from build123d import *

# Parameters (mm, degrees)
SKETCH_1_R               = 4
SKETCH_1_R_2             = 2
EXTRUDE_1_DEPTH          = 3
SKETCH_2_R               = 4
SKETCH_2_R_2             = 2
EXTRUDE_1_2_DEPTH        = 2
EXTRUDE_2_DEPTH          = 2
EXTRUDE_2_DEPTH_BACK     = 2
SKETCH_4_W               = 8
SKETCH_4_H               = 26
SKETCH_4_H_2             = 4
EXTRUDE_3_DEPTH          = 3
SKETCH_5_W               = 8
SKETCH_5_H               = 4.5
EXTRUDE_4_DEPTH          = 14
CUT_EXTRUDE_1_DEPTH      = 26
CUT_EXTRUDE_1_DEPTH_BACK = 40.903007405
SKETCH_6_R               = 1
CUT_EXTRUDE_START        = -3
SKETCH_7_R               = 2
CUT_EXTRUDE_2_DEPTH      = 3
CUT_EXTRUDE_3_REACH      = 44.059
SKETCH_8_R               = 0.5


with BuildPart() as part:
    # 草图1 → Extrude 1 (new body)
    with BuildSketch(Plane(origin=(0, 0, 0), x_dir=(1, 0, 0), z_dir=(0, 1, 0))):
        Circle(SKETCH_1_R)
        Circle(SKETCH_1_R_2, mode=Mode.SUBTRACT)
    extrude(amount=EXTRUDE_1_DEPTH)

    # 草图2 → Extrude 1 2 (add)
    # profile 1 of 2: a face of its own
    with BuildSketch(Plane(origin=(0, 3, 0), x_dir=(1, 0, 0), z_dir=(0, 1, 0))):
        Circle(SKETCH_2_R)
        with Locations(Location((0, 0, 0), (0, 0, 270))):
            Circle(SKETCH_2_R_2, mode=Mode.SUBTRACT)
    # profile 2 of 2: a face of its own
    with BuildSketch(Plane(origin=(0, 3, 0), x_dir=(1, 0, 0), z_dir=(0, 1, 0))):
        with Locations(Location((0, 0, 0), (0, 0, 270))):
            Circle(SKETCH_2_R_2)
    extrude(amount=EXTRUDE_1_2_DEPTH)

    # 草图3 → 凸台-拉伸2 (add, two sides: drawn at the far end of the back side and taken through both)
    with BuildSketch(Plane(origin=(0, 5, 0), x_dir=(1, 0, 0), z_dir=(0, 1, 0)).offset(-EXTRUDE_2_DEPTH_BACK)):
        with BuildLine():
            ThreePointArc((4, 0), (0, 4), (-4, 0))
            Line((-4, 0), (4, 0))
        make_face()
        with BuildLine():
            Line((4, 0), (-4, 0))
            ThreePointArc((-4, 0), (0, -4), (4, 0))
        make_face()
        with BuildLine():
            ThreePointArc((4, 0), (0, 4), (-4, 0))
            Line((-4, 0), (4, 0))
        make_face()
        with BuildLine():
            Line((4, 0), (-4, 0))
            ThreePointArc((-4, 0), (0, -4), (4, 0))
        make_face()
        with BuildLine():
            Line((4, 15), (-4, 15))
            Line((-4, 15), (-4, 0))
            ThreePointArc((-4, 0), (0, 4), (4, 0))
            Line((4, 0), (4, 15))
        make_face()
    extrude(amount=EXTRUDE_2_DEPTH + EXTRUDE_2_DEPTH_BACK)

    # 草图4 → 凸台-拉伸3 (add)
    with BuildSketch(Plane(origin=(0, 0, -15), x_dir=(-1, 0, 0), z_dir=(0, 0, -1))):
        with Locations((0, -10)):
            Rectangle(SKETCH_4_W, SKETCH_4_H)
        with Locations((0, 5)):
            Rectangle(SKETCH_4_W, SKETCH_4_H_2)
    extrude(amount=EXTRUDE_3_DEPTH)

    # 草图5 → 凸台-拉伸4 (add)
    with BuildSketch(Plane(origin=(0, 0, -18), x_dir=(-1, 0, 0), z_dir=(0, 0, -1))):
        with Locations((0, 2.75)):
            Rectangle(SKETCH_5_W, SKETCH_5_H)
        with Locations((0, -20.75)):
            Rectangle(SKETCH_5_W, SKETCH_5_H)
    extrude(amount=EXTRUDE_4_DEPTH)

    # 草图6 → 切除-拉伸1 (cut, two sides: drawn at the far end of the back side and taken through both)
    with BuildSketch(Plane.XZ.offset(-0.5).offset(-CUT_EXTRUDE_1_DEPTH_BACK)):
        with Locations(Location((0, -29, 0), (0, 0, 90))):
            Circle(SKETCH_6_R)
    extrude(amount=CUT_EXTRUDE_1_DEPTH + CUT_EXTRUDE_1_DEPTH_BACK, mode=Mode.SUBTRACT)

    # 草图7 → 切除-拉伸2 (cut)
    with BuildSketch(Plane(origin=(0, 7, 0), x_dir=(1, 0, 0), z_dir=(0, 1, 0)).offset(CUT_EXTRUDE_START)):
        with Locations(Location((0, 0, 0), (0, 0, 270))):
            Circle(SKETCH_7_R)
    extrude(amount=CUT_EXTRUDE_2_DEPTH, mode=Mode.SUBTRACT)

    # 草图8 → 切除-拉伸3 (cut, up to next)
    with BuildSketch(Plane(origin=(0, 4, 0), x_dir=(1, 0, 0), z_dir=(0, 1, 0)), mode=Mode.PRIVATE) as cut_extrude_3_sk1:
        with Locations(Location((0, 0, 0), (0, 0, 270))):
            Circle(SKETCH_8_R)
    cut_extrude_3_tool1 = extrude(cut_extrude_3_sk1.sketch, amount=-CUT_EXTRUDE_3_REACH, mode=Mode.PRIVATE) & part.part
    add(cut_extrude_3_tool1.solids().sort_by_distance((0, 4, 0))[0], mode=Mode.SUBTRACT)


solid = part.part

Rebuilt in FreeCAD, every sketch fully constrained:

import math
import FreeCAD as App
import Part
import Sketcher


def add_polygon(sketch, points):
    """Adds a closed chain of lines whose ends are joined by coincident constraints."""
    first, n = sketch.GeometryCount, len(points)
    for a, b in zip(points, points[1:] + points[:1]):
        sketch.addGeometry(Part.LineSegment(App.Vector(*a, 0), App.Vector(*b, 0)), False)
    for i in range(n):
        sketch.addConstraint(Sketcher.Constraint("Coincident", first + i, 2, first + (i + 1) % n, 1))

doc = App.newDocument("Part")
params = doc.addObject("Spreadsheet::Sheet", "Params")
for row, (alias, value) in enumerate([
    ("sketch1_diameter", "8 mm"),
    ("sketch1_diameter2", "4 mm"),
    ("pad1_length", "3 mm"),
    ("sketch2_diameter", "8 mm"),
    ("pad2_length", "2 mm"),
    ("sketch3_radius", "4 mm"),
    ("sketch3_height", "15 mm"),
    ("pad3_length", "2 mm"),
    ("pad3_length2", "2 mm"),
    ("sketch4_width", "8 mm"),
    ("sketch4_height", "30 mm"),
    ("pad4_length", "3 mm"),
    ("sketch5_width", "8 mm"),
    ("sketch5_height", "4.5 mm"),
    ("pad5_length", "14 mm"),
    ("sketch6_diameter", "2 mm"),
    ("sketch7_diameter", "4 mm"),
    ("pocket2_length", "3 mm"),
    ("sketch8_diameter", "1 mm"),
], start=1):
    params.set(f"A{row}", alias)
    params.set(f"B{row}", "=" + value)
    params.setAlias(f"B{row}", alias)

body = doc.addObject("PartDesign::Body", "Body")

# Sketch on XZ plane
sketch1 = body.newObject("Sketcher::SketchObject", "Sketch")
sketch1.AttachmentSupport = (doc.getObject("XZ_Plane"), [""])
sketch1.MapMode = "FlatFace"
sketch1.addGeometry([
    Part.Circle(App.Vector(0, 0, 0), App.Vector(0, 0, 1), 4),
    Part.Circle(App.Vector(0, 0, 0), App.Vector(0, 0, 1), 2),
], False)
sketch1.addConstraint([
    Sketcher.Constraint("Coincident", 0, 3, -1, 1),
    Sketcher.Constraint("Coincident", 1, 3, -1, 1),
    Sketcher.Constraint("Diameter", 0, 8.0),
    Sketcher.Constraint("Diameter", 1, 4.0),
])
sketch1.setExpression("Constraints[2]", "Params.sketch1_diameter")
sketch1.setExpression("Constraints[3]", "Params.sketch1_diameter2")
pad1 = body.newObject("PartDesign::Pad", "Pad")
pad1.Profile = sketch1
pad1.setExpression("Length", "Params.pad1_length")
pad1.Reversed = True

# Sketch on XZ plane
sketch2 = body.newObject("Sketcher::SketchObject", "Sketch001")
sketch2.AttachmentSupport = (doc.getObject("XZ_Plane"), [""])
sketch2.MapMode = "FlatFace"
sketch2.AttachmentOffset = App.Placement(App.Vector(0, 0, -3), App.Rotation())
sketch2.addGeometry(Part.Circle(App.Vector(0, 0, 0), App.Vector(0, 0, 1), 4), False)
sketch2.addConstraint([
    Sketcher.Constraint("Coincident", 0, 3, -1, 1),
    Sketcher.Constraint("Diameter", 0, 8.0),
])
sketch2.setExpression("Constraints[1]", "Params.sketch2_diameter")
pad2 = body.newObject("PartDesign::Pad", "Pad001")
pad2.Profile = sketch2
pad2.setExpression("Length", "Params.pad2_length")
pad2.Reversed = True

# Sketch on XZ plane
sketch3 = body.newObject("Sketcher::SketchObject", "Sketch002")
sketch3.AttachmentSupport = (doc.getObject("XZ_Plane"), [""])
sketch3.MapMode = "FlatFace"
sketch3.AttachmentOffset = App.Placement(App.Vector(0, 0, -5), App.Rotation())
sketch3.addGeometry([
    Part.ArcOfCircle(Part.Circle(App.Vector(0, 0, 0), App.Vector(0, 0, 1), 4), math.radians(0), math.radians(180)),
    Part.LineSegment(App.Vector(4, 0, 0), App.Vector(4, -15, 0)),
    Part.LineSegment(App.Vector(4, -15, 0), App.Vector(-4, -15, 0)),
    Part.LineSegment(App.Vector(-4, -15, 0), App.Vector(-4, 0, 0)),
], False)
sketch3.addConstraint([
    Sketcher.Constraint("Tangent", 0, 1, 1, 1),
    Sketcher.Constraint("Coincident", 1, 2, 2, 1),
    Sketcher.Constraint("Coincident", 2, 2, 3, 1),
    Sketcher.Constraint("Tangent", 3, 2, 0, 2),
    Sketcher.Constraint("Vertical", 1),
    Sketcher.Constraint("Horizontal", 2),
    Sketcher.Constraint("Vertical", 3),
    Sketcher.Constraint("Coincident", 0, 3, -1, 1),
    Sketcher.Constraint("Radius", 0, 4.0),
    Sketcher.Constraint("DistanceY", 1, 2, 1, 1, 15.0),
])
sketch3.setExpression("Constraints[8]", "Params.sketch3_radius")
sketch3.setExpression("Constraints[9]", "Params.sketch3_height")
pad3 = body.newObject("PartDesign::Pad", "Pad002")
pad3.Profile = sketch3
pad3.Type = "TwoLengths"
pad3.setExpression("Length", "Params.pad3_length")
pad3.setExpression("Length2", "Params.pad3_length2")
pad3.Reversed = True

# Sketch on XY plane
sketch4 = body.newObject("Sketcher::SketchObject", "Sketch003")
sketch4.AttachmentSupport = (doc.getObject("XY_Plane"), [""])
sketch4.MapMode = "FlatFace"
sketch4.AttachmentOffset = App.Placement(App.Vector(0, 0, -15), App.Rotation())
add_polygon(sketch4, [(4, -23), (-4, -23), (-4, 7), (4, 7)])  # lines 0-3
sketch4.addConstraint([
    Sketcher.Constraint("Horizontal", 0),
    Sketcher.Constraint("Vertical", 1),
    Sketcher.Constraint("Horizontal", 2),
    Sketcher.Constraint("Vertical", 3),
    Sketcher.Constraint("DistanceX", 0, 2, 0, 1, 8.0),
    Sketcher.Constraint("DistanceY", 1, 1, 1, 2, 30.0),
    Sketcher.Constraint("DistanceX", 0, 2, -1, 1, 4.0),
    Sketcher.Constraint("DistanceY", 0, 2, -1, 1, 23.0),
])
sketch4.setExpression("Constraints[8]", "Params.sketch4_width")
sketch4.setExpression("Constraints[9]", "Params.sketch4_height")
pad4 = body.newObject("PartDesign::Pad", "Pad003")
pad4.Profile = sketch4
pad4.setExpression("Length", "Params.pad4_length")
pad4.Reversed = True

# Sketch on XY plane
sketch5 = body.newObject("Sketcher::SketchObject", "Sketch004")
sketch5.AttachmentSupport = (doc.getObject("XY_Plane"), [""])
sketch5.MapMode = "FlatFace"
sketch5.AttachmentOffset = App.Placement(App.Vector(0, 0, -18), App.Rotation())
add_polygon(sketch5, [(4, 5), (4, 0.5), (-4, 0.5), (-4, 5)])  # lines 0-3
add_polygon(sketch5, [(4, -18.5), (4, -23), (-4, -23), (-4, -18.5)])  # lines 4-7
sketch5.addConstraint([
    Sketcher.Constraint("Vertical", 0),
    Sketcher.Constraint("Horizontal", 1),
    Sketcher.Constraint("Vertical", 2),
    Sketcher.Constraint("Horizontal", 3),
    Sketcher.Constraint("Vertical", 4),
    Sketcher.Constraint("Horizontal", 5),
    Sketcher.Constraint("Vertical", 6),
    Sketcher.Constraint("Horizontal", 7),
    Sketcher.Constraint("Vertical", 3, 2, 4, 2),
    Sketcher.Constraint("Vertical", 2, 2, 5, 2),
    Sketcher.Constraint("Equal", 2, 4),
    Sketcher.Constraint("DistanceX", 1, 2, 1, 1, 8.0),
    Sketcher.Constraint("DistanceY", 0, 2, 0, 1, 4.5),
    Sketcher.Constraint("DistanceX", -1, 1, 0, 2, 4.0),
    Sketcher.Constraint("DistanceY", -1, 1, 2, 2, 5.0),
    Sketcher.Constraint("DistanceY", 4, 2, -1, 1, 23.0),
])
sketch5.setExpression("Constraints[19]", "Params.sketch5_width")
sketch5.setExpression("Constraints[20]", "Params.sketch5_height")
pad5 = body.newObject("PartDesign::Pad", "Pad004")
pad5.Profile = sketch5
pad5.setExpression("Length", "Params.pad5_length")
pad5.Reversed = True

# Sketch on XZ plane
sketch6 = body.newObject("Sketcher::SketchObject", "Sketch005")
sketch6.AttachmentSupport = (doc.getObject("XZ_Plane"), [""])
sketch6.MapMode = "FlatFace"
sketch6.AttachmentOffset = App.Placement(App.Vector(0, 0, -0.5), App.Rotation())
sketch6.addGeometry(Part.Circle(App.Vector(0, -29, 0), App.Vector(0, 0, 1), 1), False)
sketch6.addConstraint([
    Sketcher.Constraint("PointOnObject", 0, 3, -2),
    Sketcher.Constraint("Diameter", 0, 2.0),
    Sketcher.Constraint("DistanceY", 0, 3, -1, 1, 29.0),
])
sketch6.setExpression("Constraints[1]", "Params.sketch6_diameter")
pocket1 = body.newObject("PartDesign::Pocket", "Pocket")
pocket1.Profile = sketch6
pocket1.Type = "ThroughAll"
pocket1.Midplane = True

# Sketch on XZ plane
sketch7 = body.newObject("Sketcher::SketchObject", "Sketch006")
sketch7.AttachmentSupport = (doc.getObject("XZ_Plane"), [""])
sketch7.MapMode = "FlatFace"
sketch7.AttachmentOffset = App.Placement(App.Vector(0, 0, -4), App.Rotation())
sketch7.addGeometry(Part.Circle(App.Vector(0, 0, 0), App.Vector(0, 0, 1), 2), False)
sketch7.addConstraint([
    Sketcher.Constraint("Coincident", 0, 3, -1, 1),
    Sketcher.Constraint("Diameter", 0, 4.0),
])
sketch7.setExpression("Constraints[1]", "Params.sketch7_diameter")
pocket2 = body.newObject("PartDesign::Pocket", "Pocket001")
pocket2.Profile = sketch7
pocket2.setExpression("Length", "Params.pocket2_length")

# Sketch on XZ plane
sketch8 = body.newObject("Sketcher::SketchObject", "Sketch007")
sketch8.AttachmentSupport = (doc.getObject("XZ_Plane"), [""])
sketch8.MapMode = "FlatFace"
sketch8.AttachmentOffset = App.Placement(App.Vector(0, 0, -4), App.Rotation())
sketch8.addGeometry(Part.Circle(App.Vector(0, 0, 0), App.Vector(0, 0, 1), 0.5), False)
sketch8.addConstraint([
    Sketcher.Constraint("Coincident", 0, 3, -1, 1),
    Sketcher.Constraint("Diameter", 0, 1.0),
])
sketch8.setExpression("Constraints[1]", "Params.sketch8_diameter")
pocket3 = body.newObject("PartDesign::Pocket", "Pocket002")
pocket3.Profile = sketch8
pocket3.Type = "UpToFirst"
pocket3.Reversed = True

doc.recompute()
